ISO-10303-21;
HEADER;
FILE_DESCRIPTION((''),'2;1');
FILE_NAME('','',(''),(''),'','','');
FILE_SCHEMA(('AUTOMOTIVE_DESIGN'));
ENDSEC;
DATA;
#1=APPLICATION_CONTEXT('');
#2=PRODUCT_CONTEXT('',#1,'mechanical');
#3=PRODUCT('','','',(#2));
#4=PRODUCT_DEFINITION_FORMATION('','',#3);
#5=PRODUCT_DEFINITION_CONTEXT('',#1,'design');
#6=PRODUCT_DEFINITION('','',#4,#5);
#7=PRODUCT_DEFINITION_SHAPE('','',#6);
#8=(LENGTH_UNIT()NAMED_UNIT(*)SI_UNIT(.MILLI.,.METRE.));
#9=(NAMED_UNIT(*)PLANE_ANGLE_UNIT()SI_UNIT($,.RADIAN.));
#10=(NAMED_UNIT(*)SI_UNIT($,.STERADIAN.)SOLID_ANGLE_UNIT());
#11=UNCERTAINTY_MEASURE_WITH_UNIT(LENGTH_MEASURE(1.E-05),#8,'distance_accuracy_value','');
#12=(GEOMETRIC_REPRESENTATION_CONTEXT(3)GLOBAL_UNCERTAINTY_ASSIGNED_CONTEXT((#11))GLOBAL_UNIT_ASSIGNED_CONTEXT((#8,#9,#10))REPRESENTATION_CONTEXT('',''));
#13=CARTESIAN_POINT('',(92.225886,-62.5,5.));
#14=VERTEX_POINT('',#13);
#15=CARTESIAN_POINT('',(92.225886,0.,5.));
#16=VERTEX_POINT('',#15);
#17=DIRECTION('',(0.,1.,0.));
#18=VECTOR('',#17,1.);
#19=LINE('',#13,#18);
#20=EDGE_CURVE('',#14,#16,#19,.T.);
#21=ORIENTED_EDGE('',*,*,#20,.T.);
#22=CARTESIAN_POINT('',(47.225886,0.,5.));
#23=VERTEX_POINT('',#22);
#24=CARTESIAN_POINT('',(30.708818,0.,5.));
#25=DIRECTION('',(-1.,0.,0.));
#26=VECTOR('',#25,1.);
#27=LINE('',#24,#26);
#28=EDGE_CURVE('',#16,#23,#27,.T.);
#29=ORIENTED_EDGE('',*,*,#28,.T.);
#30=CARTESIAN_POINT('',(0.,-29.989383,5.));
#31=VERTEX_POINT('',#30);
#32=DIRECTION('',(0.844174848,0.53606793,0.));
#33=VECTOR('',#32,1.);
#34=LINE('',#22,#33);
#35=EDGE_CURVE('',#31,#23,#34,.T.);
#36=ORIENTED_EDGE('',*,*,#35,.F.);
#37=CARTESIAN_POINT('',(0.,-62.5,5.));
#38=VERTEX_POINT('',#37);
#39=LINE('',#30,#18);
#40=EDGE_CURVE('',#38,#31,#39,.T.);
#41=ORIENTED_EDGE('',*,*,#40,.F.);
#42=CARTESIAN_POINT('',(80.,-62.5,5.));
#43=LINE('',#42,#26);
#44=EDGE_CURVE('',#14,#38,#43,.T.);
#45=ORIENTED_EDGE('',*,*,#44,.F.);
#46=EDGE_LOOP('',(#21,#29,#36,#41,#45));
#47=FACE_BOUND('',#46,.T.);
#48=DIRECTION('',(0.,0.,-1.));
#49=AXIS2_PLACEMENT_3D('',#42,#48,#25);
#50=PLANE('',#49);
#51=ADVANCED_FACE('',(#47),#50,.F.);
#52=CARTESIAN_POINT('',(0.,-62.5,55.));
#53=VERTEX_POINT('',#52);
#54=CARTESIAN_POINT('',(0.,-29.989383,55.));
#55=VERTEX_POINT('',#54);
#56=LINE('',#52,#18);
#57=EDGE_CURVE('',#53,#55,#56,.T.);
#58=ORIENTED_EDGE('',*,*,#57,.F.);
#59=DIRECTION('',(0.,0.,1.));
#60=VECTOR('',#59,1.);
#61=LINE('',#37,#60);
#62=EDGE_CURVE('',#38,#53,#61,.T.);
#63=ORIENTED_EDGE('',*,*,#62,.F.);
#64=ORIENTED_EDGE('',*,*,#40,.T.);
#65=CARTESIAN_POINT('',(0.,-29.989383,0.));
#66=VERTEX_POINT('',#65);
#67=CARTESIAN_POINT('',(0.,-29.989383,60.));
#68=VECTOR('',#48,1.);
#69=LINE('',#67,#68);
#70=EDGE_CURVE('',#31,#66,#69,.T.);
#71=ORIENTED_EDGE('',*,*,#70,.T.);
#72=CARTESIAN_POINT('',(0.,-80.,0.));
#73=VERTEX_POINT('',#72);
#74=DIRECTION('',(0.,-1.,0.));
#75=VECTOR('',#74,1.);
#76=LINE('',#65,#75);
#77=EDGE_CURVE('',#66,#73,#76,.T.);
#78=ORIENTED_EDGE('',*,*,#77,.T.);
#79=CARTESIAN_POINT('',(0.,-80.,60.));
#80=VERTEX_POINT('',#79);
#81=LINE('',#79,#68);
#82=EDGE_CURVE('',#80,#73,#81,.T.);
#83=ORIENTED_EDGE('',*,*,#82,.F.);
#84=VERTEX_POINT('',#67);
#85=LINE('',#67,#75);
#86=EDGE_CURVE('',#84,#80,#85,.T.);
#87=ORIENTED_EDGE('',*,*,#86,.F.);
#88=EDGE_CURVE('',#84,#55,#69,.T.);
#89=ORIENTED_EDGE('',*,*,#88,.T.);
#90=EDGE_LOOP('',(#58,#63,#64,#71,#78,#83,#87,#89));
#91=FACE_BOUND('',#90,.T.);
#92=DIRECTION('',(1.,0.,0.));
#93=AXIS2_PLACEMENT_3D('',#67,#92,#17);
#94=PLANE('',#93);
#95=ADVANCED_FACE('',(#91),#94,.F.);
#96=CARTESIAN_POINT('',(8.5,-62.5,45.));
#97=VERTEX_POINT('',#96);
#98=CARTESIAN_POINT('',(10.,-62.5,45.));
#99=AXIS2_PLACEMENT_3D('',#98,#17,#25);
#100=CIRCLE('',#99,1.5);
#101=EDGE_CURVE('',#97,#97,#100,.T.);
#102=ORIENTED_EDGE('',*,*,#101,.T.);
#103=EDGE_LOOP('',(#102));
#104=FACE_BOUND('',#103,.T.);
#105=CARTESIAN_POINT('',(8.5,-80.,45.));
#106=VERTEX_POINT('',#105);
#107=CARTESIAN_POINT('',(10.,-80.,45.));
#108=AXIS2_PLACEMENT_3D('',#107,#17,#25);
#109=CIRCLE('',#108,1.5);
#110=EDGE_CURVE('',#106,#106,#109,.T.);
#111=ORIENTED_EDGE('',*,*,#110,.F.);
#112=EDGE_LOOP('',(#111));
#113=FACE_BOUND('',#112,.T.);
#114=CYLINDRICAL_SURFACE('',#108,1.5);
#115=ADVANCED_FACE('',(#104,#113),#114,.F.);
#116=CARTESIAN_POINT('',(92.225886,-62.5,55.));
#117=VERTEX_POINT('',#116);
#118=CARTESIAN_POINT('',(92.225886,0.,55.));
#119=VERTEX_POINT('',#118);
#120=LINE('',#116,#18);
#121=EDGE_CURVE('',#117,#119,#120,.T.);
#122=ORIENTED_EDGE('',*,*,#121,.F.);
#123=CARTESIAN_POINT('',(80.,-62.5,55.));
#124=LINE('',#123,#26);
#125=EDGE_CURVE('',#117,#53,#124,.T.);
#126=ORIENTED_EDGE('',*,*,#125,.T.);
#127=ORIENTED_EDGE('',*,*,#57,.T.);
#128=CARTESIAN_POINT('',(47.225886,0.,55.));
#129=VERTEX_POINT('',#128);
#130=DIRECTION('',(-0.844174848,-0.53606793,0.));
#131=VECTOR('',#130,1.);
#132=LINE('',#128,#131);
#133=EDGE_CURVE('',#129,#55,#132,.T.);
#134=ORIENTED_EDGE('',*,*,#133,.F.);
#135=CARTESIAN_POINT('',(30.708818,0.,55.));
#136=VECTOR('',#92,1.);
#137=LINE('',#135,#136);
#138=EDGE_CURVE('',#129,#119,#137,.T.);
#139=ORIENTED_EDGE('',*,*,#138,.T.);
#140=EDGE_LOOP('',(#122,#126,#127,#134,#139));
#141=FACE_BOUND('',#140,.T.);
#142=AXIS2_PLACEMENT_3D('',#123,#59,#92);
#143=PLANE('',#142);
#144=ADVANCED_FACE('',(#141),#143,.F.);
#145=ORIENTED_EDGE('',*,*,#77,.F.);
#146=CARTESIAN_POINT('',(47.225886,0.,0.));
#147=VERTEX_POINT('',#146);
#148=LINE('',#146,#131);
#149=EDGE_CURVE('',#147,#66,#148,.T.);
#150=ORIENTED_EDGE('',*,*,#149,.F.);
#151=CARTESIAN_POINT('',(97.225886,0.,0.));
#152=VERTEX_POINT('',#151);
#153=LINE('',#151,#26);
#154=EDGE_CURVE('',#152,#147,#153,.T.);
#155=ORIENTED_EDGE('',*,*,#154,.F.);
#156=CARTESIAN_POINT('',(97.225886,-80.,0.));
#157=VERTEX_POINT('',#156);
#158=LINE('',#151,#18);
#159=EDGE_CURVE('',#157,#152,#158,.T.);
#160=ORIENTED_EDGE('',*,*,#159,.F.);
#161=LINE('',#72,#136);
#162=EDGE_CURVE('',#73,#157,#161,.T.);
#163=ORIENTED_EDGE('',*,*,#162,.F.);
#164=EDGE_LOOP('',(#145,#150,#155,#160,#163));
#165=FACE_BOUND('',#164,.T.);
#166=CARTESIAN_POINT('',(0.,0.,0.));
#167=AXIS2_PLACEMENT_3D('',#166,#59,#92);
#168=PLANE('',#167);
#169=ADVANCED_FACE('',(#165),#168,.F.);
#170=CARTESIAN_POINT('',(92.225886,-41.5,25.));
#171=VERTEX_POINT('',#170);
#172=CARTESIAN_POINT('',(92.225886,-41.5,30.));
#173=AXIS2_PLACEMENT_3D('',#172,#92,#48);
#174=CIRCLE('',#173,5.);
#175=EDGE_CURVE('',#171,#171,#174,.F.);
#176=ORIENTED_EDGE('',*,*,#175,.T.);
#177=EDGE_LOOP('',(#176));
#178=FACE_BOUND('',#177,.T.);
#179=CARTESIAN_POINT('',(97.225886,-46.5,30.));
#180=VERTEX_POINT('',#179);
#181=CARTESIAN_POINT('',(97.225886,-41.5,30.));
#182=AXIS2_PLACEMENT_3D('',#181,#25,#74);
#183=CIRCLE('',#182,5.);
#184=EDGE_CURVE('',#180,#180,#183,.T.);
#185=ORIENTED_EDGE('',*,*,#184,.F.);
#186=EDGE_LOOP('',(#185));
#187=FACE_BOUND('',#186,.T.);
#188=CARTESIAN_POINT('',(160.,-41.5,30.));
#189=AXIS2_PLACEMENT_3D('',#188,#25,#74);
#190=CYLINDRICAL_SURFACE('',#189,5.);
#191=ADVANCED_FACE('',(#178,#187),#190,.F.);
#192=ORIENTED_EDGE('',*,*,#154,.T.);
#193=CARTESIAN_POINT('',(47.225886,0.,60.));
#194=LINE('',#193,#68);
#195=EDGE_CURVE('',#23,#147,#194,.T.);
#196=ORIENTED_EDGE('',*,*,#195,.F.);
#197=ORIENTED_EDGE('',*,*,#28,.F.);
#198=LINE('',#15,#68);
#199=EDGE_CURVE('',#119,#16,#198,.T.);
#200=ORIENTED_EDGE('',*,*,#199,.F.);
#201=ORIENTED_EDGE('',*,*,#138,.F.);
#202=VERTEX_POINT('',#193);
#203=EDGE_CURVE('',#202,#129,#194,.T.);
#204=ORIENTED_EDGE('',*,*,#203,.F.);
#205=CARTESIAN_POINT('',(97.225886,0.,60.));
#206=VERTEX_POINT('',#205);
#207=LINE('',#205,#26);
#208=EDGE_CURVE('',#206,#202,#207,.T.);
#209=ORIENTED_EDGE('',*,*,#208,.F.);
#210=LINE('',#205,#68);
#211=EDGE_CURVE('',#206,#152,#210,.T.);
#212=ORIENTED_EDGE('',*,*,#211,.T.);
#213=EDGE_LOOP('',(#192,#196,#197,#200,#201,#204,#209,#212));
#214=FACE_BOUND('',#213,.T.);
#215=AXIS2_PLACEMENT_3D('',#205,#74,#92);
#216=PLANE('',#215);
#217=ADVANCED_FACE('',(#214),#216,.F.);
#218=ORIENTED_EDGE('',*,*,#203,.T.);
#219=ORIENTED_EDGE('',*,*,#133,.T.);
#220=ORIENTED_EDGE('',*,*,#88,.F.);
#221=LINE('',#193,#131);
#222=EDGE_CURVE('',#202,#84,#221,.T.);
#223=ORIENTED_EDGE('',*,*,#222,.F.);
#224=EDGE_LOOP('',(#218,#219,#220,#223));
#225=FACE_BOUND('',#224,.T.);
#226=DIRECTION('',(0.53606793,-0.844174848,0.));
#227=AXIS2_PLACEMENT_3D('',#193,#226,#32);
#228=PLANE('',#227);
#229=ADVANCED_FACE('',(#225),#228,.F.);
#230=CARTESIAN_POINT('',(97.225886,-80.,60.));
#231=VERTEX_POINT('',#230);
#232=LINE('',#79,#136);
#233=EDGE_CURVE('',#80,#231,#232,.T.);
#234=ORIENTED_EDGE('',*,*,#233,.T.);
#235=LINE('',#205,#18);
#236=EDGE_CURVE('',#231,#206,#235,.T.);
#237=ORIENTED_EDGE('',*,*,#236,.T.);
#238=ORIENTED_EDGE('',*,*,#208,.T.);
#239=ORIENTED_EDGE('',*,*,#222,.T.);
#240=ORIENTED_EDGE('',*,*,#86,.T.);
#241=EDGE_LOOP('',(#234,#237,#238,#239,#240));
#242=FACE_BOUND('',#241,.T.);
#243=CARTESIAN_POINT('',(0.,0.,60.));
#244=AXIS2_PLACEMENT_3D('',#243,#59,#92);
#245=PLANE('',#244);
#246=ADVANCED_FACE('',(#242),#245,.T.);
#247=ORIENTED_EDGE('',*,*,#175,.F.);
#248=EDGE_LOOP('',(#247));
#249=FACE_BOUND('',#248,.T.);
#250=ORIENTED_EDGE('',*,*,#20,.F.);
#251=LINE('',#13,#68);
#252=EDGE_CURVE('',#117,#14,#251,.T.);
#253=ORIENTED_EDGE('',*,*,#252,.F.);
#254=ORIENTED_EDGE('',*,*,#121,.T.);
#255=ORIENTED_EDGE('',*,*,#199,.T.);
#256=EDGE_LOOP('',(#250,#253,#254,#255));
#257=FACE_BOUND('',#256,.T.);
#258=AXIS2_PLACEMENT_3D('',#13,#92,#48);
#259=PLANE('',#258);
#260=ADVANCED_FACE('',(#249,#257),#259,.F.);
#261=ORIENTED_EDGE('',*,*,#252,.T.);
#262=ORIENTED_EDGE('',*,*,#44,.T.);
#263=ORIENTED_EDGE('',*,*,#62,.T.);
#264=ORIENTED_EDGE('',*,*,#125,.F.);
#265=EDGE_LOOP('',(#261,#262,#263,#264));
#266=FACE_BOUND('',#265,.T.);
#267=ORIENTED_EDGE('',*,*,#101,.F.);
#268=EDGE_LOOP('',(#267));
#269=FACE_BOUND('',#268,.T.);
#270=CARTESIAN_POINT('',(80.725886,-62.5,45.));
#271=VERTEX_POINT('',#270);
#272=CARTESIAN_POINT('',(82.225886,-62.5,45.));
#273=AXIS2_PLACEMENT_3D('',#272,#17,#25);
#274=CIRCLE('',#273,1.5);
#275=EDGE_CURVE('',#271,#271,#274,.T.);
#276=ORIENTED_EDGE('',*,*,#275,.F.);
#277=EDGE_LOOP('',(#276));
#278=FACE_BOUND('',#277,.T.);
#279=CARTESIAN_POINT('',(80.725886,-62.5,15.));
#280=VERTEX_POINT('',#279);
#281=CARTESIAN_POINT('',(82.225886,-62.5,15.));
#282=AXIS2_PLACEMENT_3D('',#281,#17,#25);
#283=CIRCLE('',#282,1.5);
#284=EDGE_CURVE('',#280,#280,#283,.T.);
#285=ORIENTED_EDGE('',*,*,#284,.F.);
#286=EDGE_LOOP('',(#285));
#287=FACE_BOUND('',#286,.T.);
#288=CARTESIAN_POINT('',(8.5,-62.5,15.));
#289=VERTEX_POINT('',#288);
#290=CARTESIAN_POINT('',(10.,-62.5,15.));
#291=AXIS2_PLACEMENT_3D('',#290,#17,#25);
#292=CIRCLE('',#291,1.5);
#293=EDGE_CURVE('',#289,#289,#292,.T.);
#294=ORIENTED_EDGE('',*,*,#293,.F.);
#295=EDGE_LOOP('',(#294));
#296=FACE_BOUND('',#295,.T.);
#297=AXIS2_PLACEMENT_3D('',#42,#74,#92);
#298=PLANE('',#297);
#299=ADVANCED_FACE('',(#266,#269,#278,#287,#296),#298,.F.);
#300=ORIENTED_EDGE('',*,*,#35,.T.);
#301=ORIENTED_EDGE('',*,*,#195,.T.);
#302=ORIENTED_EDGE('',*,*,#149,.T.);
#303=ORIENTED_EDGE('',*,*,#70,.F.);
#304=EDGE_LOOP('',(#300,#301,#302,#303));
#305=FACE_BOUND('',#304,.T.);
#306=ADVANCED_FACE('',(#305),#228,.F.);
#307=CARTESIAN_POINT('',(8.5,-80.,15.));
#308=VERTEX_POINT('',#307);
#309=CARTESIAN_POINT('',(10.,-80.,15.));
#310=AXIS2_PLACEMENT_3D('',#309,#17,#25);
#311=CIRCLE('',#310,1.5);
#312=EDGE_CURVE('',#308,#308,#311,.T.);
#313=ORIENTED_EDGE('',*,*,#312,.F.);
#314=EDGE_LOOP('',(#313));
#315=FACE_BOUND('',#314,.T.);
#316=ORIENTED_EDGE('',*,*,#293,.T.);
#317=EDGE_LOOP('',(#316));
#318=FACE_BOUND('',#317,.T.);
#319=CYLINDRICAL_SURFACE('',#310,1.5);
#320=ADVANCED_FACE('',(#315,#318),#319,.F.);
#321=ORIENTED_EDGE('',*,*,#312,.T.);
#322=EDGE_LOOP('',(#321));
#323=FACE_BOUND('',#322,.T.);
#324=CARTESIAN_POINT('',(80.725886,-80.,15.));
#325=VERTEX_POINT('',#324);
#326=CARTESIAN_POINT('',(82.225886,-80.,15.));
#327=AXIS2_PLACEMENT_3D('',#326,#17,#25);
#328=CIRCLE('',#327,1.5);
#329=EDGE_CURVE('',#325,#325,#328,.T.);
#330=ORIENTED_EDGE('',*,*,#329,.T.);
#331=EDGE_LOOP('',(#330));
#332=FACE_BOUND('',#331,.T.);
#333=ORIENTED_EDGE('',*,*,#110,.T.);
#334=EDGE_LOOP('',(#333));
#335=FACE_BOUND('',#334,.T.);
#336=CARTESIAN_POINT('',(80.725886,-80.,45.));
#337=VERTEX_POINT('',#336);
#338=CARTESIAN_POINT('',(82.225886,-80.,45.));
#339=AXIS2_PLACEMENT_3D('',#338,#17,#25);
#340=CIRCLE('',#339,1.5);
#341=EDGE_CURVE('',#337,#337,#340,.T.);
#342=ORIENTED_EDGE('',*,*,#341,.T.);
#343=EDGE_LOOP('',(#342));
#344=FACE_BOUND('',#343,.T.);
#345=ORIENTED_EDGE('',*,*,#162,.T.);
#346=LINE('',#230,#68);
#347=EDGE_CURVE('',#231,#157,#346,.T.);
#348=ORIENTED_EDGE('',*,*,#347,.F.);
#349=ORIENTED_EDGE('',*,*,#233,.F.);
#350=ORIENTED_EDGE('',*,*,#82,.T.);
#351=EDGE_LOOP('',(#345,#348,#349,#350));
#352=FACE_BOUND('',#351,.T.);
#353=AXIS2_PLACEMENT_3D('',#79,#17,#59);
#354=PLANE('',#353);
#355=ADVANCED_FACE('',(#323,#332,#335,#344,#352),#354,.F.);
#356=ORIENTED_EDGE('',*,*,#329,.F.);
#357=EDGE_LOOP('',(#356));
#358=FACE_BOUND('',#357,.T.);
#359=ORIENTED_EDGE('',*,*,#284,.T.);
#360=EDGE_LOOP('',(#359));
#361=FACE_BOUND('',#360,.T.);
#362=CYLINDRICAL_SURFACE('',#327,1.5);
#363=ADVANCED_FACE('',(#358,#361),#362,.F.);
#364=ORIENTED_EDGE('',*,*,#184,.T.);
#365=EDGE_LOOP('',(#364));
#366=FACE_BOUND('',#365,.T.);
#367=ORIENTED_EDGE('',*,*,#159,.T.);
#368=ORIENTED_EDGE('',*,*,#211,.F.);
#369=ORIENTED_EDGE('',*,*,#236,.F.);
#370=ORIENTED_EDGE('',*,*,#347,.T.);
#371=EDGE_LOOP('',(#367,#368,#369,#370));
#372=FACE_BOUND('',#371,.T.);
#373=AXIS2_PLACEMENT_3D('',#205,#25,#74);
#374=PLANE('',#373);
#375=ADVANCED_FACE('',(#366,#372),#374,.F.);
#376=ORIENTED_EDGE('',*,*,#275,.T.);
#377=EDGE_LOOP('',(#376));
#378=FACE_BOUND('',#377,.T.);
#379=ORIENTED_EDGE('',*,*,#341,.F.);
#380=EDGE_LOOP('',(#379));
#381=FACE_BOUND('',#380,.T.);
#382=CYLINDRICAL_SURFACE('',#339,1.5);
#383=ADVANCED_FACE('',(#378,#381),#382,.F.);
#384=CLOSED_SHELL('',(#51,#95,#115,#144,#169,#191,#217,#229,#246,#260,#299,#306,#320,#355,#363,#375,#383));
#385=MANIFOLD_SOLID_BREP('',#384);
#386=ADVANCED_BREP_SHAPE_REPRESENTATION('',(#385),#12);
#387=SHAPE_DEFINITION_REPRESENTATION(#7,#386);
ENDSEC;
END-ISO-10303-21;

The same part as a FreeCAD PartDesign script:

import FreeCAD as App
import Part
import Sketcher
Q = App.Units.Quantity

doc = App.newDocument("Part")
body = doc.addObject("PartDesign::Body", "Body")

# Sketch on XY plane
sketch1 = body.newObject("Sketcher::SketchObject", "Sketch")
sketch1.AttachmentSupport = (doc.getObject("XY_Plane"), [""])
sketch1.MapMode = "FlatFace"
sketch1.addGeometry([
    Part.LineSegment(App.Vector(97, 0, 0), App.Vector(47, 0, 0)),  # 0
    Part.LineSegment(App.Vector(47, 0, 0), App.Vector(0, -30, 0)),  # 1
    Part.LineSegment(App.Vector(0, -30, 0), App.Vector(0, -80, 0)),  # 2
    Part.LineSegment(App.Vector(0, -80, 0), App.Vector(97, -80, 0)),  # 3
    Part.LineSegment(App.Vector(97, -80, 0), App.Vector(97, 0, 0)),  # 4
], False)
sketch1.addConstraint([
    Sketcher.Constraint("Coincident", 0, 2, 1, 1),
    Sketcher.Constraint("Coincident", 1, 2, 2, 1),
    Sketcher.Constraint("Coincident", 2, 2, 3, 1),
    Sketcher.Constraint("Coincident", 3, 2, 4, 1),
    Sketcher.Constraint("Coincident", 4, 2, 0, 1),
    Sketcher.Constraint("Horizontal", 0),
    Sketcher.Constraint("Vertical", 2),
    Sketcher.Constraint("Horizontal", 3),
    Sketcher.Constraint("Vertical", 4),
    Sketcher.Constraint("PointOnObject", 0, 2, -1),
    Sketcher.Constraint("PointOnObject", 1, 2, -2),
    Sketcher.Constraint("DistanceX", 0, 2, 0, 1, Q("50 mm")),
    Sketcher.Constraint("DistanceY", 4, 1, 4, 2, Q("80 mm")),
    Sketcher.Constraint("Distance", 1, Q("55.943252 mm")),
    Sketcher.Constraint("DistanceX", 3, 1, 3, 2, Q("97.225886 mm")),
])
pad1 = body.newObject("PartDesign::Pad", "Pad")
pad1.Profile = sketch1
pad1.Length = 60

# Sketch on YZ plane
sketch2 = body.newObject("Sketcher::SketchObject", "Sketch001")
sketch2.AttachmentSupport = (doc.getObject("YZ_Plane"), [""])
sketch2.MapMode = "FlatFace"
sketch2.addGeometry([
    Part.LineSegment(App.Vector(-5, 5, 0), App.Vector(-62, 5, 0)),
    Part.LineSegment(App.Vector(-62, 5, 0), App.Vector(-62, 55, 0)),
    Part.LineSegment(App.Vector(-62, 55, 0), App.Vector(-5, 55, 0)),
    Part.LineSegment(App.Vector(-5, 55, 0), App.Vector(-5, 5, 0)),
], False)
sketch2.addConstraint([
    Sketcher.Constraint("Coincident", 0, 2, 1, 1),
    Sketcher.Constraint("Coincident", 1, 2, 2, 1),
    Sketcher.Constraint("Coincident", 2, 2, 3, 1),
    Sketcher.Constraint("Coincident", 3, 2, 0, 1),
    Sketcher.Constraint("Horizontal", 0),
    Sketcher.Constraint("Vertical", 1),
    Sketcher.Constraint("Horizontal", 2),
    Sketcher.Constraint("Vertical", 3),
    Sketcher.Constraint("DistanceY", 1, 1, 1, 2, Q("50 mm")),
    Sketcher.Constraint("DistanceX", 0, 2, 0, 1, Q("57.5 mm")),
    Sketcher.Constraint("DistanceY", -1, 1, 0, 2, Q("5 mm")),
    Sketcher.Constraint("DistanceX", 2, 2, -1, 1, Q("5 mm")),
])
pocket1 = body.newObject("PartDesign::Pocket", "Pocket")
pocket1.Profile = sketch2
pocket1.Length = 80
pocket1.Reversed = True

# Sketch on YZ plane
sketch3 = body.newObject("Sketcher::SketchObject", "Sketch002")
sketch3.AttachmentSupport = (doc.getObject("YZ_Plane"), [""])
sketch3.MapMode = "FlatFace"
sketch3.AttachmentOffset = App.Placement(App.Vector(0, 0, 80), App.Rotation())
sketch3.addGeometry(Part.Circle(App.Vector(-42, 30, 0), App.Vector(0, 0, 1), 5), False)
sketch3.addConstraint([
    Sketcher.Constraint("Diameter", 0, Q("10 mm")),
    Sketcher.Constraint("DistanceY", -1, 1, 0, 3, Q("30 mm")),
    Sketcher.Constraint("DistanceX", 0, 3, -1, 1, Q("41.5 mm")),
])
pocket2 = body.newObject("PartDesign::Pocket", "Pocket001")
pocket2.Profile = sketch3
pocket2.Length = 80
pocket2.Reversed = True

# Sketch on XZ plane
sketch4 = body.newObject("Sketcher::SketchObject", "Sketch003")
sketch4.AttachmentSupport = (doc.getObject("XZ_Plane"), [""])
sketch4.MapMode = "FlatFace"
sketch4.addGeometry([
    Part.LineSegment(App.Vector(31, 5, 0), App.Vector(31, 55, 0)),
    Part.LineSegment(App.Vector(31, 55, 0), App.Vector(92, 55, 0)),
    Part.LineSegment(App.Vector(92, 55, 0), App.Vector(92, 5, 0)),
    Part.LineSegment(App.Vector(92, 5, 0), App.Vector(31, 5, 0)),
], False)
sketch4.addConstraint([
    Sketcher.Constraint("Coincident", 0, 2, 1, 1),
    Sketcher.Constraint("Coincident", 1, 2, 2, 1),
    Sketcher.Constraint("Coincident", 2, 2, 3, 1),
    Sketcher.Constraint("Coincident", 3, 2, 0, 1),
    Sketcher.Constraint("Vertical", 0),
    Sketcher.Constraint("Horizontal", 1),
    Sketcher.Constraint("Vertical", 2),
    Sketcher.Constraint("Horizontal", 3),
    Sketcher.Constraint("DistanceY", 0, 1, 0, 2, Q("50 mm")),
    Sketcher.Constraint("DistanceY", -1, 1, 0, 2, Q("55 mm")),
    Sketcher.Constraint("DistanceX", 1, 1, 1, 2, Q("61.517068 mm")),
    Sketcher.Constraint("DistanceX", -1, 1, 0, 2, Q("30.708818 mm")),
])
pocket3 = body.newObject("PartDesign::Pocket", "Pocket002")
pocket3.Profile = sketch4
pocket3.Length = 62.5
pocket3.Reversed = True

# Sketch on XZ plane
sketch5 = body.newObject("Sketcher::SketchObject", "Sketch004")
sketch5.AttachmentSupport = (doc.getObject("XZ_Plane"), [""])
sketch5.MapMode = "FlatFace"
sketch5.AttachmentOffset = App.Placement(App.Vector(0, 0, 62.5), App.Rotation())
sketch5.addGeometry([
    Part.Circle(App.Vector(10, 15, 0), App.Vector(0, 0, 1), 1.5),
    Part.Circle(App.Vector(82.2, 15, 0), App.Vector(0, 0, 1), 1.5),
    Part.Circle(App.Vector(10, 45, 0), App.Vector(0, 0, 1), 1.5),
    Part.Circle(App.Vector(82.2, 45, 0), App.Vector(0, 0, 1), 1.5),
], False)
sketch5.addConstraint([
    Sketcher.Constraint("Equal", 0, 1),
    Sketcher.Constraint("Equal", 1, 2),
    Sketcher.Constraint("Equal", 2, 3),
    Sketcher.Constraint("Horizontal", 0, 3, 1, 3),
    Sketcher.Constraint("Horizontal", 2, 3, 3, 3),
    Sketcher.Constraint("Vertical", 0, 3, 2, 3),
    Sketcher.Constraint("Vertical", 1, 3, 3, 3),
    Sketcher.Constraint("Diameter", 0, Q("3 mm")),
    Sketcher.Constraint("DistanceX", -1, 1, 0, 3, Q("10 mm")),
    Sketcher.Constraint("DistanceY", -1, 1, 0, 3, Q("15 mm")),
    Sketcher.Constraint("DistanceY", -1, 1, 2, 3, Q("45 mm")),
    Sketcher.Constraint("DistanceX", -1, 1, 1, 3, Q("82.225886 mm")),
])
pocket4 = body.newObject("PartDesign::Pocket", "Pocket003")
pocket4.Profile = sketch5
pocket4.Type = "ThroughAll"
pocket4.Reversed = True

doc.recompute()
